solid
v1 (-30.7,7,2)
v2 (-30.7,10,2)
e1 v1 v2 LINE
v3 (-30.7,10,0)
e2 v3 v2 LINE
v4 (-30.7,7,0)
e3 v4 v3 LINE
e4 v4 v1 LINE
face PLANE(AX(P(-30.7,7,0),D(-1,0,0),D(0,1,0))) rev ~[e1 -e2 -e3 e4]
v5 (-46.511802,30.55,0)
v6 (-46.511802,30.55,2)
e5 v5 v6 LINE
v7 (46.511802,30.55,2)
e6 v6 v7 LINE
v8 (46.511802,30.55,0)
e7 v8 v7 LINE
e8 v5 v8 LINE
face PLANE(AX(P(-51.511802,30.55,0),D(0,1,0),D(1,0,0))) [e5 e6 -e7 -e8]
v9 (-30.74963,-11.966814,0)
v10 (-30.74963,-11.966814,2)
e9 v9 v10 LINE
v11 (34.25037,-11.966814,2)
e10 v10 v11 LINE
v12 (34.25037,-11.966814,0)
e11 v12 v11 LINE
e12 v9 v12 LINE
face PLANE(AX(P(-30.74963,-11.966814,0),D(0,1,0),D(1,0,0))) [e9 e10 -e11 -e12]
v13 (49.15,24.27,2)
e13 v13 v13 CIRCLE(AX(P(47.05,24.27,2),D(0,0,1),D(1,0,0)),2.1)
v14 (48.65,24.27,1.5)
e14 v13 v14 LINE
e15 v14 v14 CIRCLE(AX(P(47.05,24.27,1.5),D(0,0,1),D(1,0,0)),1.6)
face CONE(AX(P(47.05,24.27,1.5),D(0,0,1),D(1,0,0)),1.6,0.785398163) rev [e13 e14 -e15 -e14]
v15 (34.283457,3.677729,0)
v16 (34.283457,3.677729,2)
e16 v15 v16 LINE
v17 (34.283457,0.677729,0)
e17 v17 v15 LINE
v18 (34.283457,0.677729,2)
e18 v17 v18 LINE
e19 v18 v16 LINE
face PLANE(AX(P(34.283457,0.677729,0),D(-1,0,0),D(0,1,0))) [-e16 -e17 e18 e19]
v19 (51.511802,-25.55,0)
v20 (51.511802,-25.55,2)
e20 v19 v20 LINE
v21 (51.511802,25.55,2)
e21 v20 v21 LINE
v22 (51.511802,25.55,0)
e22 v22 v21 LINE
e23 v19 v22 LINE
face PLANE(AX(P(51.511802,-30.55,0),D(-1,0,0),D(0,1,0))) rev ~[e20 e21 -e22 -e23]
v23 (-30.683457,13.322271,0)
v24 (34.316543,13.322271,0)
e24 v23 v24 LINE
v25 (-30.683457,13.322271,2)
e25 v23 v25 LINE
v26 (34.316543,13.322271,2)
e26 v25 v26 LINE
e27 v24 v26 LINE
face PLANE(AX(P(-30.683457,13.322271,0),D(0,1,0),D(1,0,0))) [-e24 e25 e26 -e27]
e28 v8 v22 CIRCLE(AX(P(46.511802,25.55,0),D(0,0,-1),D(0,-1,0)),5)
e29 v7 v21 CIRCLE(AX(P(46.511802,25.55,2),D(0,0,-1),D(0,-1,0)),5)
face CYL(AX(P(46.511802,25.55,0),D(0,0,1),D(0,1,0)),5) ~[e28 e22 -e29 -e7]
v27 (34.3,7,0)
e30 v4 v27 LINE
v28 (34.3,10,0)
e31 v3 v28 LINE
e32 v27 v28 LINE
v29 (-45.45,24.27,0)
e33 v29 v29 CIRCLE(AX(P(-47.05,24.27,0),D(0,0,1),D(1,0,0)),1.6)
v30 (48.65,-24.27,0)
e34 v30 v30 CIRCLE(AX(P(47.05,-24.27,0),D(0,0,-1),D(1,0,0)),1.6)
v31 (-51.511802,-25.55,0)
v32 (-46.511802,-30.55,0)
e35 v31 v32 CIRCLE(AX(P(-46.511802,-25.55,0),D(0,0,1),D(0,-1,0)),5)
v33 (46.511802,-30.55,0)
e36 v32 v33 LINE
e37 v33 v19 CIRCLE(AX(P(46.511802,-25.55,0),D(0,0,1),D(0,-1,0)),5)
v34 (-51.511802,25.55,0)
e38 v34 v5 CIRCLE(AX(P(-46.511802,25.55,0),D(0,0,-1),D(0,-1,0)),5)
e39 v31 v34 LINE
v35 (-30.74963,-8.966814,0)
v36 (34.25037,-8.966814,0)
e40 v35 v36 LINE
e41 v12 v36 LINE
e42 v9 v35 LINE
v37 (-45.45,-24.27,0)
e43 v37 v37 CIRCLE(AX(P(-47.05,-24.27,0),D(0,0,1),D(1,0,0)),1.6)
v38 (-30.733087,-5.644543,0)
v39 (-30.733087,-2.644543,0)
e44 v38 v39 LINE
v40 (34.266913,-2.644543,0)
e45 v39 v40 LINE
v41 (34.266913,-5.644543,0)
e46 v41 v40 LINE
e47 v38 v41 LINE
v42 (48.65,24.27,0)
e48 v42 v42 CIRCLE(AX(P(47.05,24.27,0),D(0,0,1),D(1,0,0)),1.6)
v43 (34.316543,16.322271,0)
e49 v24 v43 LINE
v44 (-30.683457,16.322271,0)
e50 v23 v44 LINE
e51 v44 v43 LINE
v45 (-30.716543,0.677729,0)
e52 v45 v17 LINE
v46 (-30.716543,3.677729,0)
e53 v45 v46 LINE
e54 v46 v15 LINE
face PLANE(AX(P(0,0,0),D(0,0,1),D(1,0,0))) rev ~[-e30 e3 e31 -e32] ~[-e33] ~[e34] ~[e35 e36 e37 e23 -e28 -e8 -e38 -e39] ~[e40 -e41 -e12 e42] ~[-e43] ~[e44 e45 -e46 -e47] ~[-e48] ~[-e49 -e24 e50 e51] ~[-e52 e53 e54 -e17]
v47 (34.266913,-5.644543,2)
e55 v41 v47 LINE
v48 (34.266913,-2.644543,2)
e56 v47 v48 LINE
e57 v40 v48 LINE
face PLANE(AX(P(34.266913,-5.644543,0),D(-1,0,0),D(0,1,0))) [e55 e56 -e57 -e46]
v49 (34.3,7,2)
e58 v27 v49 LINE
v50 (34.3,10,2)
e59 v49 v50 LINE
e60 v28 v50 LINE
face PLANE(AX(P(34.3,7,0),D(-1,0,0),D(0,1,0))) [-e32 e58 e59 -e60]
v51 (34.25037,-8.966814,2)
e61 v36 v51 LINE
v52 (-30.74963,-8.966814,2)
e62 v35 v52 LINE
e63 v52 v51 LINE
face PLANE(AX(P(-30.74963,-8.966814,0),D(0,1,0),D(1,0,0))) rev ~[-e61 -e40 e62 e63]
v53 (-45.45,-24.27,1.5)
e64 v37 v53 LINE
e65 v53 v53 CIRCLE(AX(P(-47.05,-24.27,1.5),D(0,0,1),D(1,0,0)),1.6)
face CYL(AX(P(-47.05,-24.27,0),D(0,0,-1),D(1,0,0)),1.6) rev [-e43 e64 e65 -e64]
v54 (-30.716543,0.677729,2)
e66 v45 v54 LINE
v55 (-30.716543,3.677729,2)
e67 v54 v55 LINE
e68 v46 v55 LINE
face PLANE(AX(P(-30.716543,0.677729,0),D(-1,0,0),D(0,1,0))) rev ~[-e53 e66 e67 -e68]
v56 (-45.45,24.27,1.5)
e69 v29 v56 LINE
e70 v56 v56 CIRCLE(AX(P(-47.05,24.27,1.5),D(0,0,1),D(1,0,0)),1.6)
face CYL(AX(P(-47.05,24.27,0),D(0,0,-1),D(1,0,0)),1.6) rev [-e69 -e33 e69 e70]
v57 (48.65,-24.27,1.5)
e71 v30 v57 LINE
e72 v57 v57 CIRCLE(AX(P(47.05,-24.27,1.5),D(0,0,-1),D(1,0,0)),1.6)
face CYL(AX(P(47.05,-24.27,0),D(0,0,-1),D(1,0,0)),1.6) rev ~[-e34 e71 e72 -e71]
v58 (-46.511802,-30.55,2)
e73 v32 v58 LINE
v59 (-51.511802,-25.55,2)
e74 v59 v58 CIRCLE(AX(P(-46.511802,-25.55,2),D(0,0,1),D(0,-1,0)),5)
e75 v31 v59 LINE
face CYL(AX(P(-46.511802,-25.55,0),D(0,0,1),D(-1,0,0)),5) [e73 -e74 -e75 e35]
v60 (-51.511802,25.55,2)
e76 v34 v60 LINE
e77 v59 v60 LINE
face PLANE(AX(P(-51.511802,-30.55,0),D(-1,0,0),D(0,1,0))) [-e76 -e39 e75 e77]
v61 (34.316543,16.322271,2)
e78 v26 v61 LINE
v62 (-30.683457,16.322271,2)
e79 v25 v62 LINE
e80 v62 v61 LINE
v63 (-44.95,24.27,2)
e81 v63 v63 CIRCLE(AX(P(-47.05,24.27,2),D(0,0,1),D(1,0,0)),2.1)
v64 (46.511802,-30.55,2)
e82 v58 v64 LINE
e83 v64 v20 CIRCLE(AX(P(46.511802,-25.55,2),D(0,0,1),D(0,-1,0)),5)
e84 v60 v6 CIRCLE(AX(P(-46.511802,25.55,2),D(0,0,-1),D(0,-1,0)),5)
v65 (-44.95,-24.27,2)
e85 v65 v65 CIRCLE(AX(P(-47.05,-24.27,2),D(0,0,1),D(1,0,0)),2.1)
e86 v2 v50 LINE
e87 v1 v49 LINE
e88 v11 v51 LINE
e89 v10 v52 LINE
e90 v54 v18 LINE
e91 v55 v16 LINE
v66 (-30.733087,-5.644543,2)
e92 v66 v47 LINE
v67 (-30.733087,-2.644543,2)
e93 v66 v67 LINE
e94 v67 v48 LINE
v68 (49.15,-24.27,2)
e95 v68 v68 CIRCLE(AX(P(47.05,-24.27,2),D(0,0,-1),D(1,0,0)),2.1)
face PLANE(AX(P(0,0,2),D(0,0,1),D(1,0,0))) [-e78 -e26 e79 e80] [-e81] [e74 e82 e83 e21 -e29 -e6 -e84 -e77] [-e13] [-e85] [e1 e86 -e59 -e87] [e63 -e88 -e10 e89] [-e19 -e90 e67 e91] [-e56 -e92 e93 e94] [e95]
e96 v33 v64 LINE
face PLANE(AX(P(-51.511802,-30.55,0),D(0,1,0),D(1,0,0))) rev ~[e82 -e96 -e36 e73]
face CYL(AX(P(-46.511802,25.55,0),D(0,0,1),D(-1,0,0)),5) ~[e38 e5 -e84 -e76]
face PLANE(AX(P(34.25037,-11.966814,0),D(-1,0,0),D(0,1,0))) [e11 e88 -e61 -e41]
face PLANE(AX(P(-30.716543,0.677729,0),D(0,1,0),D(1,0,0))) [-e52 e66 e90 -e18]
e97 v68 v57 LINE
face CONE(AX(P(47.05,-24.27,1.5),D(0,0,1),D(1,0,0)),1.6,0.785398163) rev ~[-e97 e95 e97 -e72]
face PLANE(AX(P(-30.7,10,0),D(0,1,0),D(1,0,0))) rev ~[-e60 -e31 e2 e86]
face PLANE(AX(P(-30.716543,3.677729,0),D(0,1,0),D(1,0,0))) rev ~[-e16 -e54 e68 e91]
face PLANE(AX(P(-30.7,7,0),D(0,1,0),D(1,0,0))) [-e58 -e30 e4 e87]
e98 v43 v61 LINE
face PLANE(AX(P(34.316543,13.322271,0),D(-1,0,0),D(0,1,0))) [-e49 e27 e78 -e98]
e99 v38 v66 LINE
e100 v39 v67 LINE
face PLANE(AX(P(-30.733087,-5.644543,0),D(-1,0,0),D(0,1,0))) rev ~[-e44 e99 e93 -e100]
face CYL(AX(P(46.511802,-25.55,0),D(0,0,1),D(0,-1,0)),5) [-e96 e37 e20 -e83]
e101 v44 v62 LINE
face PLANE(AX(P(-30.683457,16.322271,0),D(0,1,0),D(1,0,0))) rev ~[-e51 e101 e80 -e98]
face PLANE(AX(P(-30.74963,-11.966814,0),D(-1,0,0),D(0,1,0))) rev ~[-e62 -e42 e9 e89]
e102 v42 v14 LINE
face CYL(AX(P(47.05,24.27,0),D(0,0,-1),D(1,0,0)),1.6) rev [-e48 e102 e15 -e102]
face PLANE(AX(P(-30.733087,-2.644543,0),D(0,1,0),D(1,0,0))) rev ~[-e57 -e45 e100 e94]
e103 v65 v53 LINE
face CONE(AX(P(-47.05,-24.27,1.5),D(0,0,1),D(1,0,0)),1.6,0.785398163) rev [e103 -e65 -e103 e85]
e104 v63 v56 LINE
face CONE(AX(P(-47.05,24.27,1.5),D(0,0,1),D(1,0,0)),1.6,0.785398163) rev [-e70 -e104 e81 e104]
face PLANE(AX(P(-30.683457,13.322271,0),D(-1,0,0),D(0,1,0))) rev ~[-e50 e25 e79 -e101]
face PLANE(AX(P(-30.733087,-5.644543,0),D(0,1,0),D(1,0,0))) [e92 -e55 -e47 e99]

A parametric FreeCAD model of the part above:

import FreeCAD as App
import Part
import Sketcher
from FreeCAD import Vector
Q = App.Units.Quantity


def edges_at(feature, points):
    """Names of the edges that pass closest to the given points."""
    edges = feature.Shape.Edges
    near = lambda p: min(range(len(edges)), key=lambda i: edges[i].distToShape(Part.Vertex(*p))[0])
    return sorted({f"Edge{near(p) + 1}" for p in points})


def add_polygon(sketch, points):
    """Adds a closed chain of lines whose ends are joined by coincident constraints."""
    first, n = sketch.GeometryCount, len(points)
    for a, b in zip(points, points[1:] + points[:1]):
        sketch.addGeometry(Part.LineSegment(App.Vector(*a, 0), App.Vector(*b, 0)), False)
    for i in range(n):
        sketch.addConstraint(Sketcher.Constraint("Coincident", first + i, 2, first + (i + 1) % n, 1))

doc = App.newDocument("Part")
body = doc.addObject("PartDesign::Body", "Body")

# Sketch on XY plane
sketch1 = doc.addObject("Sketcher::SketchObject", "Sketch")
body.addObject(sketch1)
sketch1.AttachmentSupport = (doc.XY_Plane, [""])
sketch1.MapMode = "FlatFace"
add_polygon(sketch1, [(-51.511802, 30.55), (-51.511802, -30.55), (51.511802, -30.55), (51.511802, 30.55)])  # lines 0-3
sketch1.addGeometry(Part.Circle(Vector(-47.05, -24.27, 0), Vector(0, 0, 1), 1.6), False)  # 4
sketch1.addGeometry(Part.Circle(Vector(47.05, -24.27, 0), Vector(0, 0, 1), 1.6), False)  # 5
add_polygon(sketch1, [(34.25037, -11.966814), (-30.74963, -11.966814), (-30.74963, -8.966814), (34.25037, -8.966814)])  # lines 6-9
add_polygon(sketch1, [(34.266913, -5.644543), (-30.733087, -5.644543), (-30.733087, -2.644543), (34.266913, -2.644543)])  # lines 10-13
sketch1.addGeometry(Part.Circle(Vector(-47.05, 24.27, 0), Vector(0, 0, 1), 1.6), False)  # 14
add_polygon(sketch1, [(34.283457, 0.677729), (-30.716543, 0.677729), (-30.716543, 3.677729), (34.283457, 3.677729)])  # lines 15-18
add_polygon(sketch1, [(34.3, 7), (-30.7, 7), (-30.7, 10), (34.3, 10)])  # lines 19-22
add_polygon(sketch1, [(34.316543, 13.322271), (-30.683457, 13.322271), (-30.683457, 16.322271), (34.316543, 16.322271)])  # lines 23-26
sketch1.addGeometry(Part.Circle(Vector(47.05, 24.27, 0), Vector(0, 0, 1), 1.6), False)  # 27
sketch1.addConstraint([
    Sketcher.Constraint("Vertical", 0),
    Sketcher.Constraint("Horizontal", 1),
    Sketcher.Constraint("Vertical", 2),
    Sketcher.Constraint("Horizontal", 3),
    Sketcher.Constraint("Horizontal", 6),
    Sketcher.Constraint("Vertical", 7),
    Sketcher.Constraint("Horizontal", 8),
    Sketcher.Constraint("Vertical", 9),
    Sketcher.Constraint("Horizontal", 10),
    Sketcher.Constraint("Vertical", 11),
    Sketcher.Constraint("Horizontal", 12),
    Sketcher.Constraint("Vertical", 13),
    Sketcher.Constraint("Horizontal", 15),
    Sketcher.Constraint("Vertical", 16),
    Sketcher.Constraint("Horizontal", 17),
    Sketcher.Constraint("Vertical", 18),
    Sketcher.Constraint("Horizontal", 19),
    Sketcher.Constraint("Vertical", 20),
    Sketcher.Constraint("Horizontal", 21),
    Sketcher.Constraint("Vertical", 22),
    Sketcher.Constraint("Horizontal", 23),
    Sketcher.Constraint("Vertical", 24),
    Sketcher.Constraint("Horizontal", 25),
    Sketcher.Constraint("Vertical", 26),
    Sketcher.Constraint("Equal", 4, 5),
    Sketcher.Constraint("Equal", 5, 14),
    Sketcher.Constraint("Equal", 14, 27),
    Sketcher.Constraint("Symmetric", 5, 3, 14, 3, -1, 1),
    Sketcher.Constraint("Symmetric", 4, 3, 27, 3, -1, 1),
    Sketcher.Constraint("Symmetric", 0, 2, 2, 2, -1, 1),
    Sketcher.Constraint("Symmetric", 4, 3, 5, 3, -2),
    Sketcher.Constraint("Equal", 8, 10),
    Sketcher.Constraint("Equal", 12, 15),
    Sketcher.Constraint("Equal", 17, 19),
    Sketcher.Constraint("Equal", 21, 23),
    Sketcher.Constraint("Equal", 9, 11),
    Sketcher.Constraint("Equal", 13, 16),
    Sketcher.Constraint("Equal", 18, 20),
    Sketcher.Constraint("Equal", 22, 24),
    Sketcher.Constraint("Diameter", 4, Q("3.2 mm")),
    Sketcher.Constraint("DistanceX", 6, 2, 6, 1, Q("65 mm")),
    Sketcher.Constraint("DistanceY", 7, 1, 7, 2, Q("3 mm")),
    Sketcher.Constraint("DistanceY", 0, 2, 0, 1, Q("61.1 mm")),
    Sketcher.Constraint("DistanceY", -1, 1, 19, 2, Q("7 mm")),
    Sketcher.Constraint("DistanceX", 19, 2, -1, 1, Q("30.7 mm")),
    Sketcher.Constraint("DistanceX", 4, 3, 5, 3, Q("94.1 mm")),
    Sketcher.Constraint("DistanceY", 4, 3, -1, 1, Q("24.27 mm")),
    Sketcher.Constraint("DistanceX", 0, 2, 5, 3, Q("98.561802 mm")),
    Sketcher.Constraint("DistanceX", 6, 2, -1, 1, Q("30.74963 mm")),
    Sketcher.Constraint("DistanceY", -1, 1, 15, 2, Q("0.677729 mm")),
    Sketcher.Constraint("DistanceY", -1, 1, 23, 2, Q("13.322271 mm")),
    Sketcher.Constraint("DistanceY", 7, 2, 10, 2, Q("3.322271 mm")),
    Sketcher.Constraint("DistanceX", 12, 2, 1, 2, Q("17.244889 mm")),
    Sketcher.Constraint("DistanceY", 11, 2, 15, 2, Q("3.322272 mm")),
    Sketcher.Constraint("DistanceX", 11, 2, 23, 2, Q("0.04963 mm")),
    Sketcher.Constraint("DistanceX", 15, 2, -1, 1, Q("30.716543 mm")),
])
pad1 = doc.addObject("PartDesign::Pad", "Pad")
body.addObject(pad1)
pad1.Profile = sketch1
pad1.Length = 2
doc.recompute()

fillet = doc.addObject("PartDesign::Fillet", "Fillet")
body.addObject(fillet)
fillet.Base = (pad1, edges_at(pad1, [
    (-51.512, -30.55, 1),
    (-51.512, 30.55, 1),
    (51.512, -30.55, 1),
    (51.512, 30.55, 1),
]))
fillet.Radius = 5
doc.recompute()

chamfer = doc.addObject("PartDesign::Chamfer", "Chamfer")
body.addObject(chamfer)
chamfer.Base = (fillet, edges_at(fillet, [
    (-48.65, -24.27, 2),
    (-48.65, 24.27, 2),
    (45.45, 24.27, 2),
    (45.45, -24.27, 2),
]))
chamfer.Size = 0.5

doc.recompute()
